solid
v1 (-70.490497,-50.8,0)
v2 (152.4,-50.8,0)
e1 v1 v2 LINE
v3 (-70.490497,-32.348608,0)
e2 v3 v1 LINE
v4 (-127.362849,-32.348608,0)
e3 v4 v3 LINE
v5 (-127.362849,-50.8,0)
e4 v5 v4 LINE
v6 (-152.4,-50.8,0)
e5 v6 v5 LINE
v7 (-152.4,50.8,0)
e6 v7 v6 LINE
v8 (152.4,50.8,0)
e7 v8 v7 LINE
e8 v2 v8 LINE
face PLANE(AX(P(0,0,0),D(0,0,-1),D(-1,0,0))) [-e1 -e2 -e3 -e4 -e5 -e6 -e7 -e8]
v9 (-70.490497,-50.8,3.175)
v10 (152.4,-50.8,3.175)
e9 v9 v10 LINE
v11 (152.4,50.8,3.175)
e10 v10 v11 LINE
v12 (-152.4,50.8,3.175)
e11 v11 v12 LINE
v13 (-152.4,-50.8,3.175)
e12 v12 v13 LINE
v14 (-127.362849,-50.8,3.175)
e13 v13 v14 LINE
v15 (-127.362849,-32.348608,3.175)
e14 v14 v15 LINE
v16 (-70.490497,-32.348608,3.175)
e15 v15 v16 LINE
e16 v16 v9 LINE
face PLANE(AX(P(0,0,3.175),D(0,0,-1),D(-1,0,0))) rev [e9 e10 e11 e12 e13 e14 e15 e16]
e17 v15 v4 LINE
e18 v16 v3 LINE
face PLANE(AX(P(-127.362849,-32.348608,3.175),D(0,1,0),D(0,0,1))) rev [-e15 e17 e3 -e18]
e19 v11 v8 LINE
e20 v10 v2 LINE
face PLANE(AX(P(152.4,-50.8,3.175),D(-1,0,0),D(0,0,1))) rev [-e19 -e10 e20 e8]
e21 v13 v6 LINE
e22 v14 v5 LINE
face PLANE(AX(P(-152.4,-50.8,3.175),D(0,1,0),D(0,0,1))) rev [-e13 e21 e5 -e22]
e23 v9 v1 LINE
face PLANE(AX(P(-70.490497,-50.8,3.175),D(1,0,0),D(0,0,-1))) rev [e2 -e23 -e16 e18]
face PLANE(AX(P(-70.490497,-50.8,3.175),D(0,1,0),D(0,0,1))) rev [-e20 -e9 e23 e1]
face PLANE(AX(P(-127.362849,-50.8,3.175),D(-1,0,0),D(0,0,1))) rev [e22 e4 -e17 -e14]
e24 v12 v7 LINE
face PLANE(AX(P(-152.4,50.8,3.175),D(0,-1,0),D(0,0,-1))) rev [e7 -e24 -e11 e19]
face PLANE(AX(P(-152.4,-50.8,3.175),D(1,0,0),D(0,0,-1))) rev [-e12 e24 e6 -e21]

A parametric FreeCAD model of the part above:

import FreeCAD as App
import Part
import Sketcher
from FreeCAD import Vector
Q = App.Units.Quantity

doc = App.newDocument("Part")
body = doc.addObject("PartDesign::Body", "Body")

# Sketch on XY plane
sketch1 = body.newObject("Sketcher::SketchObject", "Sketch")
sketch1.AttachmentSupport = (doc.getObject("XY_Plane"), [""])
sketch1.MapMode = "FlatFace"
sketch1.addGeometry([
    Part.LineSegment(Vector(-70, -51, 0), Vector(152, -51, 0)),  # 0
    Part.LineSegment(Vector(152, -51, 0), Vector(152, 51, 0)),  # 1
    Part.LineSegment(Vector(152, 51, 0), Vector(-152, 51, 0)),  # 2
    Part.LineSegment(Vector(-152, 51, 0), Vector(-152, -51, 0)),  # 3
    Part.LineSegment(Vector(-152, -51, 0), Vector(-127, -51, 0)),  # 4
    Part.LineSegment(Vector(-127, -51, 0), Vector(-127, -32, 0)),  # 5
    Part.LineSegment(Vector(-127, -32, 0), Vector(-70, -32, 0)),  # 6
    Part.LineSegment(Vector(-70, -32, 0), Vector(-70, -51, 0)),  # 7
], False)
sketch1.addConstraint([
    Sketcher.Constraint("Coincident", 0, 2, 1, 1),
    Sketcher.Constraint("Coincident", 1, 2, 2, 1),
    Sketcher.Constraint("Coincident", 2, 2, 3, 1),
    Sketcher.Constraint("Coincident", 3, 2, 4, 1),
    Sketcher.Constraint("Coincident", 4, 2, 5, 1),
    Sketcher.Constraint("Coincident", 5, 2, 6, 1),
    Sketcher.Constraint("Coincident", 6, 2, 7, 1),
    Sketcher.Constraint("Coincident", 7, 2, 0, 1),
    Sketcher.Constraint("Horizontal", 0),
    Sketcher.Constraint("Vertical", 1),
    Sketcher.Constraint("Horizontal", 2),
    Sketcher.Constraint("Vertical", 3),
    Sketcher.Constraint("Horizontal", 4),
    Sketcher.Constraint("Vertical", 5),
    Sketcher.Constraint("Horizontal", 6),
    Sketcher.Constraint("Vertical", 7),
    Sketcher.Constraint("Symmetric", 0, 2, 2, 2, -1, 1),
    Sketcher.Constraint("Horizontal", 0, 2, 3, 2),
    Sketcher.Constraint("DistanceX", 2, 2, 2, 1, Q("12 in")),
    Sketcher.Constraint("DistanceY", 1, 1, 1, 2, Q("4 in")),
    Sketcher.Constraint("DistanceX", 4, 1, 4, 2, 25.037151),
    Sketcher.Constraint("DistanceX", 0, 1, 0, 2, 222.890497),
    Sketcher.Constraint("DistanceY", 5, 1, 5, 2, 18.451392),
])
pad1 = body.newObject("PartDesign::Pad", "Pad")
pad1.Profile = sketch1
pad1.Length = Q("0.125 in")

doc.recompute()
